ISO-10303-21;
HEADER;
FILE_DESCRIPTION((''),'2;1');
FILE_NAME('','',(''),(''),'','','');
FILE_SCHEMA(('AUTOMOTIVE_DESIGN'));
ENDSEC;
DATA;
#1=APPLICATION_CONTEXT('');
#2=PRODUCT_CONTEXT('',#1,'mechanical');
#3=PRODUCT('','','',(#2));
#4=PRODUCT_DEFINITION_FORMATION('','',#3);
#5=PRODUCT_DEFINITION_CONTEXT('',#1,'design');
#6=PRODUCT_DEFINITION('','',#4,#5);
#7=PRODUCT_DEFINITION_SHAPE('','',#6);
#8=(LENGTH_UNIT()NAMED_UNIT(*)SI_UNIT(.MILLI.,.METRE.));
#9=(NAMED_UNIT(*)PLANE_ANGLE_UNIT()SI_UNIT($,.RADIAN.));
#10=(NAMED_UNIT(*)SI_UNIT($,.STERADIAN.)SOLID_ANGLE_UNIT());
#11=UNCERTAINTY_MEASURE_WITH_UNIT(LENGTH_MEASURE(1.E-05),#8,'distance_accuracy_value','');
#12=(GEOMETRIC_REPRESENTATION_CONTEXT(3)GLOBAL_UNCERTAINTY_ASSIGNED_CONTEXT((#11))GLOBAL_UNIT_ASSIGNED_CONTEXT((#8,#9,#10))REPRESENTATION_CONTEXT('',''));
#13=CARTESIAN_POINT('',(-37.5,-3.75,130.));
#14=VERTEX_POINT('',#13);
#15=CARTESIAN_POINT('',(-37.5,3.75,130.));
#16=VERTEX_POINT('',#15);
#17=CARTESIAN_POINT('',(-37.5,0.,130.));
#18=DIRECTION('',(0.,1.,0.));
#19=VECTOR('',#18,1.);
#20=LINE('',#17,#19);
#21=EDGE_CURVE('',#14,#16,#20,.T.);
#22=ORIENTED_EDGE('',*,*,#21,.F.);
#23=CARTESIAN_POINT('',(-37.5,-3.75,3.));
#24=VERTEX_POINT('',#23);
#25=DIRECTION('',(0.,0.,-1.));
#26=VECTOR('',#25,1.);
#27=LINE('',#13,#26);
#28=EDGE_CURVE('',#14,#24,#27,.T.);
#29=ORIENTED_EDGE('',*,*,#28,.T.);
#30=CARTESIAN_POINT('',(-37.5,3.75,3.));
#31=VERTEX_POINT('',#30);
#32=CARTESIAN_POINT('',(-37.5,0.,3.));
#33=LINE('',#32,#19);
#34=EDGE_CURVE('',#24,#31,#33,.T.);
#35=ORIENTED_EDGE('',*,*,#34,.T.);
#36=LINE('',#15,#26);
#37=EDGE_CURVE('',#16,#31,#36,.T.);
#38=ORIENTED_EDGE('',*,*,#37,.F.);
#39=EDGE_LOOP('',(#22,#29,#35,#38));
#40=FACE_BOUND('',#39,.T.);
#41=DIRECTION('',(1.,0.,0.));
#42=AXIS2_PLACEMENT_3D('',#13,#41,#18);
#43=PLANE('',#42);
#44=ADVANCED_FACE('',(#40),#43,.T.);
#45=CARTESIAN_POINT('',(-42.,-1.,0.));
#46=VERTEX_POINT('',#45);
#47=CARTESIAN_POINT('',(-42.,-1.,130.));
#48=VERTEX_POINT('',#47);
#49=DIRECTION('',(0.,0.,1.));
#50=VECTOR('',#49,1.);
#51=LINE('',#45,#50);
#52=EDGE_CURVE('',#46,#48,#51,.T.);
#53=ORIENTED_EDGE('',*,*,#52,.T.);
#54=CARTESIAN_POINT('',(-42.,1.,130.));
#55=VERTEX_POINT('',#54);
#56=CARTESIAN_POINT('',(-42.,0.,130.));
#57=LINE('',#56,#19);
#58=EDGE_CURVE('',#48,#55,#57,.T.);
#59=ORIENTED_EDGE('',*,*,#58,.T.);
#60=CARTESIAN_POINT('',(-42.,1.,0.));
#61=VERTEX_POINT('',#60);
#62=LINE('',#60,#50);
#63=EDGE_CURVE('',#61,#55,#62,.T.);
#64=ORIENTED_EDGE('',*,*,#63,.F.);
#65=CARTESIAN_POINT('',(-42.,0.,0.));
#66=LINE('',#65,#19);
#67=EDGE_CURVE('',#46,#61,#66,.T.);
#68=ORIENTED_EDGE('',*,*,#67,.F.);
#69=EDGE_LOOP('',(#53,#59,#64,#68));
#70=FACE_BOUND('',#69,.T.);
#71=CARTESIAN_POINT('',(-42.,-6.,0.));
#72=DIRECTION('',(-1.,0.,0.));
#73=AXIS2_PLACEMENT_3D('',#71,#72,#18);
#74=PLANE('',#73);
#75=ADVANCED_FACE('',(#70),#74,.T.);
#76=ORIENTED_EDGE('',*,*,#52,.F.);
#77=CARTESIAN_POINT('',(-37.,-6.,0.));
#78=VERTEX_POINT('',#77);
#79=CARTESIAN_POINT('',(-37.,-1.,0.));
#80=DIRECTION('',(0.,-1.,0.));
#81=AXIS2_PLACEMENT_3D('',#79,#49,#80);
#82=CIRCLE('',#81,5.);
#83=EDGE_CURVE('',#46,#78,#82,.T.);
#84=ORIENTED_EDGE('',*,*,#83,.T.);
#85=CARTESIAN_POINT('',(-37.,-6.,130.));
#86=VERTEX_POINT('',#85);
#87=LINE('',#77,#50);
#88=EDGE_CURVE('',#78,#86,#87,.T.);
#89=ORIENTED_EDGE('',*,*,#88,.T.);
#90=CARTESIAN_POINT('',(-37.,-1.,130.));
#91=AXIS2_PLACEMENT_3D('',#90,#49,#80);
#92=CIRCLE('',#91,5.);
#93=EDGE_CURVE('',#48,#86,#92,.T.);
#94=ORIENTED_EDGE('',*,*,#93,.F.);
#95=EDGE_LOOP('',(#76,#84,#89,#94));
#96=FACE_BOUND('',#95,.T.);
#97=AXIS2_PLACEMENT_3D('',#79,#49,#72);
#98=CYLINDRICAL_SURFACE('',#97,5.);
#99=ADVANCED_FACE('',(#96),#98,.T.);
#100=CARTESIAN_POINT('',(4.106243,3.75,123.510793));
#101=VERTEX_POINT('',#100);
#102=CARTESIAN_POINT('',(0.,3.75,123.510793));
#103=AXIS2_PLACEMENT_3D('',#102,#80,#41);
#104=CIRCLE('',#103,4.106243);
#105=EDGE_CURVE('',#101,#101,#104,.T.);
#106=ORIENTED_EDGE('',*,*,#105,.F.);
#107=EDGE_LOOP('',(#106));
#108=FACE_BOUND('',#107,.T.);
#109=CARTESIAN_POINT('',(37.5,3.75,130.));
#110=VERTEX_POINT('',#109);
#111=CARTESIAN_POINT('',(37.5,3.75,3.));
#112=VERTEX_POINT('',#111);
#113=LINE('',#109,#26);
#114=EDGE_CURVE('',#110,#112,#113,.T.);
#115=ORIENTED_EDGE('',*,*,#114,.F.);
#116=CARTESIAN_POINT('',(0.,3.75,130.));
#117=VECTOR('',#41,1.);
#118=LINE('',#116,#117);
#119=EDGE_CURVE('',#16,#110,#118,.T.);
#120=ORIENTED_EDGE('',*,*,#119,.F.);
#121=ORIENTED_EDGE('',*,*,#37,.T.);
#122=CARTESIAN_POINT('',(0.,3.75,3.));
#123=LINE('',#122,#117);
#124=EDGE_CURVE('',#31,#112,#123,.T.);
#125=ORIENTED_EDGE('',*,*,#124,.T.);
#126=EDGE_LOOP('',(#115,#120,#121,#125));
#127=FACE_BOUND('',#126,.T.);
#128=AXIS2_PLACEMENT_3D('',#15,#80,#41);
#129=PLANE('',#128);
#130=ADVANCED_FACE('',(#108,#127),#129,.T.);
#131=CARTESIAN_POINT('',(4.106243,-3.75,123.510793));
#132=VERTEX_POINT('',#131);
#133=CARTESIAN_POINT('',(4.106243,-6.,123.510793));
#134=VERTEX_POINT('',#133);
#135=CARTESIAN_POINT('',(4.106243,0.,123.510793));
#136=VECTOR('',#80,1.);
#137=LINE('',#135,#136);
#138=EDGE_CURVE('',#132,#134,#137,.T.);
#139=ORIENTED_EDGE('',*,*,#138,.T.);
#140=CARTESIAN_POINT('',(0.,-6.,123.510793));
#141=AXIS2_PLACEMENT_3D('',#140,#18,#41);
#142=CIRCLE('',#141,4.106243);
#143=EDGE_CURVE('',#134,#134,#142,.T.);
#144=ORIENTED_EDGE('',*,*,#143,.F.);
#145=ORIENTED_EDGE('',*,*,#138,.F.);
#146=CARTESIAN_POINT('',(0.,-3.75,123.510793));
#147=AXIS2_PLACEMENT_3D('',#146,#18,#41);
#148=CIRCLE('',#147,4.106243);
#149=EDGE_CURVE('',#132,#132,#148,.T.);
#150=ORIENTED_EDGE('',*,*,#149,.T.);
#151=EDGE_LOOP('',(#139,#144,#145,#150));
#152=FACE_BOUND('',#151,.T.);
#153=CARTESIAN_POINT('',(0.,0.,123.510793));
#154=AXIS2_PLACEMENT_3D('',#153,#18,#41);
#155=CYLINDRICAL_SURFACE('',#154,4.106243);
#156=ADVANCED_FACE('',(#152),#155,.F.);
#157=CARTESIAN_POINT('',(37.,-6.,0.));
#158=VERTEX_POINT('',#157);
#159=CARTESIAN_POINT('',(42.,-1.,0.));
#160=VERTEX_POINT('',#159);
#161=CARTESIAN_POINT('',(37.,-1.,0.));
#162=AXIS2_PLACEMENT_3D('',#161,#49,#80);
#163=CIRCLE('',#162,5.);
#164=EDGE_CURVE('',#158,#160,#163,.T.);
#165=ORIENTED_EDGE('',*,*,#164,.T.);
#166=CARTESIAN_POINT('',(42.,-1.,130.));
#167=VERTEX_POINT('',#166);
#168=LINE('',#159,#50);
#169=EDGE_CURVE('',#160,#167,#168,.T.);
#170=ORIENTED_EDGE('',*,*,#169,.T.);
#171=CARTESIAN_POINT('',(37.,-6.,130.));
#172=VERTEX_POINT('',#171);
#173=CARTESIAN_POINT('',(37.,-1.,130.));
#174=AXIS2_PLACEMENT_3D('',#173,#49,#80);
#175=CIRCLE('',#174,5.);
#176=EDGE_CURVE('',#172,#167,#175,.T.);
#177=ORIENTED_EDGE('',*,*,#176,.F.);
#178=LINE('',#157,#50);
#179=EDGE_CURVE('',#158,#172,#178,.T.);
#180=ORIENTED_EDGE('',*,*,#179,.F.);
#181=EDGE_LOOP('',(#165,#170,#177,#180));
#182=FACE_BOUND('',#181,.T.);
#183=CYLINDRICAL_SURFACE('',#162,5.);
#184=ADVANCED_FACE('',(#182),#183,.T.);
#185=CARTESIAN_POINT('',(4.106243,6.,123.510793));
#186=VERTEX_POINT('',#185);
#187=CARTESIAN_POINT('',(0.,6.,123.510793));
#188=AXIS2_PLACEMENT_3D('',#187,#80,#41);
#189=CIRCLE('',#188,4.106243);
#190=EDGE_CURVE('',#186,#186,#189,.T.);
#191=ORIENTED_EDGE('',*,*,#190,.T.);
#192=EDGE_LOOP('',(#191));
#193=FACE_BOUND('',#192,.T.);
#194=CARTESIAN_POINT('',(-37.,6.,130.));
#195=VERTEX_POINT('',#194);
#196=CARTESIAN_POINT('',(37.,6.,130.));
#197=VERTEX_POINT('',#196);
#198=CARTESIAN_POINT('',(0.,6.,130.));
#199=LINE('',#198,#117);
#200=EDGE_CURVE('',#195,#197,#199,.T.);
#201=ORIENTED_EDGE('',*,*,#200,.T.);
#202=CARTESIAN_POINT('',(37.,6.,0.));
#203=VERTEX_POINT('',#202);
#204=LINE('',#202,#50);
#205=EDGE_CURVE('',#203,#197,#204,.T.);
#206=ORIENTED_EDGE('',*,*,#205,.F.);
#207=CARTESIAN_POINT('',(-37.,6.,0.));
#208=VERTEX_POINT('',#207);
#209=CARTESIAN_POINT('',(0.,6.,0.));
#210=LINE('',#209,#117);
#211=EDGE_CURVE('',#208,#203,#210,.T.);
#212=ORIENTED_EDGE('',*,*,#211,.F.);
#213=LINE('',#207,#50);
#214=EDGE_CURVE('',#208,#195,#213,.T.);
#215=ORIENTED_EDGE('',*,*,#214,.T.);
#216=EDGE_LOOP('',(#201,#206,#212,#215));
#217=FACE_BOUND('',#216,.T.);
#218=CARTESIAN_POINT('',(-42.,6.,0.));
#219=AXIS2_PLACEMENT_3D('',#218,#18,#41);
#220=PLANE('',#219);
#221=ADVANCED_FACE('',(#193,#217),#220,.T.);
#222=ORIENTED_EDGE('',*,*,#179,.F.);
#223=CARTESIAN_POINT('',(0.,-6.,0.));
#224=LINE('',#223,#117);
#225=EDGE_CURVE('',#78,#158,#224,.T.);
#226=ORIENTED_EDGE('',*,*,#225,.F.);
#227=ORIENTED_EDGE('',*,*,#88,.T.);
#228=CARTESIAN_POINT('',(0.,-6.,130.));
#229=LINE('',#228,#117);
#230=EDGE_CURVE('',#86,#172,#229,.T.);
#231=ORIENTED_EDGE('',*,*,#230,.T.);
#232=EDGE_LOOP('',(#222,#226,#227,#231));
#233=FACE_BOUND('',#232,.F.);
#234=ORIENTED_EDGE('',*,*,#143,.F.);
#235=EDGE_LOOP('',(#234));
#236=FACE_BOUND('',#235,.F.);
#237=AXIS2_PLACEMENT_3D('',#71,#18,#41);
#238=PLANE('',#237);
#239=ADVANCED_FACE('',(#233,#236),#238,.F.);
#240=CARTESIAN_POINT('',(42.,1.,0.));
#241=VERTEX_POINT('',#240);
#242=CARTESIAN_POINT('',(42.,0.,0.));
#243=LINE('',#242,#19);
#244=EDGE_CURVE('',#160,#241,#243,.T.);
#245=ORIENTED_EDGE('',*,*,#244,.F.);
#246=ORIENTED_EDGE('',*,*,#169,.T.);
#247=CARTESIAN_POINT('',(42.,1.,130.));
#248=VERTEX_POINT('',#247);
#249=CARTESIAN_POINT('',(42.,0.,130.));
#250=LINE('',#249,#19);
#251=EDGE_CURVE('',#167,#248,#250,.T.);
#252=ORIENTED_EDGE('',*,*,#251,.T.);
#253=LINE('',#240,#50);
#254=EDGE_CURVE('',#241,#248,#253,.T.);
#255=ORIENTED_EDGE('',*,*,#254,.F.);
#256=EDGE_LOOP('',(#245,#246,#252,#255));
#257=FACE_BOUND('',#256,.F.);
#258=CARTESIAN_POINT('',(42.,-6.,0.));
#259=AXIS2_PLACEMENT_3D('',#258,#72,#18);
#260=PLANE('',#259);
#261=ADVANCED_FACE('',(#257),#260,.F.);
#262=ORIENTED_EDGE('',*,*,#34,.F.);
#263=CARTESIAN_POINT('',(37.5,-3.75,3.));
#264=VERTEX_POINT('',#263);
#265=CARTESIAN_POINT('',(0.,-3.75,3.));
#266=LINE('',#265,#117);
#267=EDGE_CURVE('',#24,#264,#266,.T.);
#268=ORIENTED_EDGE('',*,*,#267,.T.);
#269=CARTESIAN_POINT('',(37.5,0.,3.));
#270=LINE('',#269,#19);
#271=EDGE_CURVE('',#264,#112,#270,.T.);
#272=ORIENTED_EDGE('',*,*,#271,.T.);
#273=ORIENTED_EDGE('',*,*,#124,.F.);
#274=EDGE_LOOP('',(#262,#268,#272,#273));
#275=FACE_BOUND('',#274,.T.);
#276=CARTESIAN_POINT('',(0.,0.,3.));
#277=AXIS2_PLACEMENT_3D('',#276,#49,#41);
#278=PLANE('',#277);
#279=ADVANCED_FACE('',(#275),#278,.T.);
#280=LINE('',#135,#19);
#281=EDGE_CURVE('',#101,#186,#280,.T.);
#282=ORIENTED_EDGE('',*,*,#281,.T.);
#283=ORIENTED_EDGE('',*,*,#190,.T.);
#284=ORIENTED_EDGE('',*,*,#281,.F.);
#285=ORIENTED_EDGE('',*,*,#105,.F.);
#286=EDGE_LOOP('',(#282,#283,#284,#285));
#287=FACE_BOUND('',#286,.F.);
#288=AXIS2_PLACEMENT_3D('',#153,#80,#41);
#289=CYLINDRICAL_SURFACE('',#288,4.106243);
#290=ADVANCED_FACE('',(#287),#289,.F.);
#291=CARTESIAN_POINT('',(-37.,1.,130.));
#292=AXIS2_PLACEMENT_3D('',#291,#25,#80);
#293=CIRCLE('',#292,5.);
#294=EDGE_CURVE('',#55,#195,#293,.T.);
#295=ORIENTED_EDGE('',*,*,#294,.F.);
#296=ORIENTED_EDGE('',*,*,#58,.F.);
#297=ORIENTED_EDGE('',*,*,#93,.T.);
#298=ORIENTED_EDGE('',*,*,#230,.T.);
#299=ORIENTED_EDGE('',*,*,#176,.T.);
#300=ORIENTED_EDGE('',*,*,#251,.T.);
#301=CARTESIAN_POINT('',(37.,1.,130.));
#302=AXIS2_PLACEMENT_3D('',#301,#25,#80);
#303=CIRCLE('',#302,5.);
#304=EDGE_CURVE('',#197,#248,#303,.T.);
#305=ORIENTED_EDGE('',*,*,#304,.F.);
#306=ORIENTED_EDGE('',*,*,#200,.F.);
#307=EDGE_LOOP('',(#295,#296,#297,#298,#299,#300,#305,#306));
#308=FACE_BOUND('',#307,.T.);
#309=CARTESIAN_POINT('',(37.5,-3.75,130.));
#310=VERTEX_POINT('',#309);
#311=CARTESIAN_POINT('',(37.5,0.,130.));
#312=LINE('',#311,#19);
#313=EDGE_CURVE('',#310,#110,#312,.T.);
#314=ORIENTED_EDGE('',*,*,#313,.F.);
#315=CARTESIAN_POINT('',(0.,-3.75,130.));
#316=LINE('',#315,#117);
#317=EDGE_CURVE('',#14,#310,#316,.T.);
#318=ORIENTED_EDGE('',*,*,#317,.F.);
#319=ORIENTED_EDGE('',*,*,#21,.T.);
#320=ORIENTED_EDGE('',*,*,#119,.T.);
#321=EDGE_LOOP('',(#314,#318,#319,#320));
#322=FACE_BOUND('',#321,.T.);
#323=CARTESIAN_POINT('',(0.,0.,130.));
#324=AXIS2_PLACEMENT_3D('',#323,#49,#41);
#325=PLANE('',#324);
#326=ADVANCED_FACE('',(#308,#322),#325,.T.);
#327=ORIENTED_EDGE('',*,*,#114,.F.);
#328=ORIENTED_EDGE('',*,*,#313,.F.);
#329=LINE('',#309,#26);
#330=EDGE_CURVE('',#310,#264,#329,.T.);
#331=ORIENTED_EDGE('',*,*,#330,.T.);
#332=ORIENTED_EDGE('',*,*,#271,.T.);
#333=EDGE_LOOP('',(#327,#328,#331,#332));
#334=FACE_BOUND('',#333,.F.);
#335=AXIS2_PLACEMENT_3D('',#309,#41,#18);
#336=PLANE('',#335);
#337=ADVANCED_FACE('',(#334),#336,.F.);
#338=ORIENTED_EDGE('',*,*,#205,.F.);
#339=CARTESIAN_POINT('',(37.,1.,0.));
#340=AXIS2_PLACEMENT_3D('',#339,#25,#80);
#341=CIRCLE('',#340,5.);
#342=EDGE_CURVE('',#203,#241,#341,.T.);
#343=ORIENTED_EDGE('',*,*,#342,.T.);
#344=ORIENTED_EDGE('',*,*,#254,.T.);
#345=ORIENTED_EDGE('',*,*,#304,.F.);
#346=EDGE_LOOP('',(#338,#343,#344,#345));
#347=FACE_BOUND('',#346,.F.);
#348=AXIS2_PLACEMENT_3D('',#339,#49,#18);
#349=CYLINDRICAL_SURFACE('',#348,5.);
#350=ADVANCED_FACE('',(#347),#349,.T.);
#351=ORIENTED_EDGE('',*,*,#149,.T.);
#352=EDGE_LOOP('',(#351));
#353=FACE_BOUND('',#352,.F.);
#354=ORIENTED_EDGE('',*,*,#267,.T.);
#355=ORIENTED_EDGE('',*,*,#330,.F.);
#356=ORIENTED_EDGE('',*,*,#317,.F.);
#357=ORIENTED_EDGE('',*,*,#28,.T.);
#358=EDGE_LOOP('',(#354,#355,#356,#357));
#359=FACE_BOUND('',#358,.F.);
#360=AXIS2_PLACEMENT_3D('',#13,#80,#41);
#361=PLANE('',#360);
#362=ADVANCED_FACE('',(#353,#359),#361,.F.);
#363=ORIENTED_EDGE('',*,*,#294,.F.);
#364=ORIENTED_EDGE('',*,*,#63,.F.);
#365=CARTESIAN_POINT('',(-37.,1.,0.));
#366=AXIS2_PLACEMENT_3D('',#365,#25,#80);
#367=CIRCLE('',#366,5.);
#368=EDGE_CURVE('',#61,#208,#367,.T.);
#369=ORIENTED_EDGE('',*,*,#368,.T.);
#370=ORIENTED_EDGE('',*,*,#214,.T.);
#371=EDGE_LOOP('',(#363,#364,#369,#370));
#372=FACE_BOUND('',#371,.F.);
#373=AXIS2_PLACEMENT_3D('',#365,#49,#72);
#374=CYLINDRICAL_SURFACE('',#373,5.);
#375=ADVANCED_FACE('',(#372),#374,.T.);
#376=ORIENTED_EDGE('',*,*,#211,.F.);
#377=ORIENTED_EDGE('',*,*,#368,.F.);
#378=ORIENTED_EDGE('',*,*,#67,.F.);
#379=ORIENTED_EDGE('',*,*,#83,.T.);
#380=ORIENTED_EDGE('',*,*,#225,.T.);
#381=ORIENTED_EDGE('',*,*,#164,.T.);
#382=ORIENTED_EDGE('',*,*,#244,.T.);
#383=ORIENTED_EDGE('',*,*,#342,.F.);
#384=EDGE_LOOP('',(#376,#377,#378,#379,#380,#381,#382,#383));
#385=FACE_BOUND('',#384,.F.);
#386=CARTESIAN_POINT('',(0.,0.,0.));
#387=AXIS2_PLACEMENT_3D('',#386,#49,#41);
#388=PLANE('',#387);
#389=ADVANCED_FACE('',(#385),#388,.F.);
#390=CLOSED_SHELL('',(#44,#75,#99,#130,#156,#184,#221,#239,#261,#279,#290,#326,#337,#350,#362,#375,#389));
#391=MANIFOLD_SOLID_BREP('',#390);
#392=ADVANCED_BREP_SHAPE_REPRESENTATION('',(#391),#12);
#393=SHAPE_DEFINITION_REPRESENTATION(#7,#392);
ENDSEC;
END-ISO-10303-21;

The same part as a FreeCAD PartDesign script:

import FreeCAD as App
import Part
import Sketcher


def edges_at(feature, points):
    """Names of the edges that pass closest to the given points."""
    edges = feature.Shape.Edges
    near = lambda p: min(range(len(edges)), key=lambda i: edges[i].distToShape(Part.Vertex(*p))[0])
    return sorted({f"Edge{near(p) + 1}" for p in points})


def add_polygon(sketch, points):
    """Adds a closed chain of lines whose ends are joined by coincident constraints."""
    first, n = sketch.GeometryCount, len(points)
    for a, b in zip(points, points[1:] + points[:1]):
        sketch.addGeometry(Part.LineSegment(App.Vector(*a, 0), App.Vector(*b, 0)), False)
    for i in range(n):
        sketch.addConstraint(Sketcher.Constraint("Coincident", first + i, 2, first + (i + 1) % n, 1))

doc = App.newDocument("Part")
params = doc.addObject("Spreadsheet::Sheet", "Params")
for row, (alias, value) in enumerate([
    ("sketch1_width", "84 mm"),
    ("sketch1_height", "12 mm"),
    ("pad1_length", "130 mm"),
    ("sketch2_width", "75 mm"),
    ("sketch2_height", "7.5 mm"),
    ("pocket1_length", "127 mm"),
    ("fillet_radius", "5 mm"),
], start=1):
    params.set(f"A{row}", alias)
    params.set(f"B{row}", "=" + value)
    params.setAlias(f"B{row}", alias)

body = doc.addObject("PartDesign::Body", "Body")

# Sketch on XY plane
sketch1 = doc.addObject("Sketcher::SketchObject", "Sketch")
body.addObject(sketch1)
sketch1.AttachmentSupport = (doc.XY_Plane, [""])
sketch1.MapMode = "FlatFace"
add_polygon(sketch1, [(-42, 6), (-42, -6), (42, -6), (42, 6)])  # lines 0-3
sketch1.addConstraint(Sketcher.Constraint("Vertical", 0))
sketch1.addConstraint(Sketcher.Constraint("Horizontal", 1))
sketch1.addConstraint(Sketcher.Constraint("Vertical", 2))
sketch1.addConstraint(Sketcher.Constraint("Horizontal", 3))
sketch1.addConstraint(Sketcher.Constraint("Symmetric", 0, 2, 2, 2, -1, 1))
sketch1.addConstraint(Sketcher.Constraint("DistanceX", 1, 1, 1, 2, 84.0))
sketch1.addConstraint(Sketcher.Constraint("DistanceY", 0, 2, 0, 1, 12.0))
sketch1.setExpression("Constraints[9]", "Params.sketch1_width")
sketch1.setExpression("Constraints[10]", "Params.sketch1_height")
pad1 = doc.addObject("PartDesign::Pad", "Pad")
body.addObject(pad1)
pad1.Profile = sketch1
pad1.setExpression("Length", "Params.pad1_length")

# Sketch on XY plane
sketch2 = doc.addObject("Sketcher::SketchObject", "Sketch001")
body.addObject(sketch2)
sketch2.AttachmentSupport = (doc.XY_Plane, [""])
sketch2.MapMode = "FlatFace"
sketch2.AttachmentOffset = App.Placement(App.Vector(0, 0, 130), App.Rotation())
add_polygon(sketch2, [(-37.5, 3.75), (-37.5, -3.75), (37.5, -3.75), (37.5, 3.75)])  # lines 0-3
sketch2.addConstraint(Sketcher.Constraint("Vertical", 0))
sketch2.addConstraint(Sketcher.Constraint("Horizontal", 1))
sketch2.addConstraint(Sketcher.Constraint("Vertical", 2))
sketch2.addConstraint(Sketcher.Constraint("Horizontal", 3))
sketch2.addConstraint(Sketcher.Constraint("Symmetric", 0, 2, 2, 2, -1, 1))
sketch2.addConstraint(Sketcher.Constraint("DistanceX", 1, 1, 1, 2, 75.0))
sketch2.addConstraint(Sketcher.Constraint("DistanceY", 0, 2, 0, 1, 7.5))
sketch2.setExpression("Constraints[9]", "Params.sketch2_width")
sketch2.setExpression("Constraints[10]", "Params.sketch2_height")
pocket1 = doc.addObject("PartDesign::Pocket", "Pocket")
body.addObject(pocket1)
pocket1.Profile = sketch2
pocket1.setExpression("Length", "Params.pocket1_length")
doc.recompute()

fillet = doc.addObject("PartDesign::Fillet", "Fillet")
body.addObject(fillet)
fillet.Base = (pocket1, edges_at(pocket1, [
    (42, -6, 65),
    (42, 6, 65),
    (-42, 6, 65),
    (-42, -6, 65),
]))
fillet.setExpression("Radius", "Params.fillet_radius")

# Sketch on XZ plane
sketch3 = doc.addObject("Sketcher::SketchObject", "Sketch002")
body.addObject(sketch3)
sketch3.AttachmentSupport = (doc.XZ_Plane, [""])
sketch3.MapMode = "FlatFace"
sketch3.addGeometry(Part.Circle(App.Vector(0, 123.510793, 0), App.Vector(0, 0, 1), 4.106243), False)
sketch3.addConstraint(Sketcher.Constraint("PointOnObject", 0, 3, -2))
sketch3.addConstraint(Sketcher.Constraint("Diameter", 0, 8.212485))
sketch3.addConstraint(Sketcher.Constraint("DistanceY", -1, 1, 0, 3, 123.510793))
pocket2 = doc.addObject("PartDesign::Pocket", "Pocket001")
body.addObject(pocket2)
pocket2.Profile = sketch3
pocket2.Type = "ThroughAll"
pocket2.Midplane = True

doc.recompute()
